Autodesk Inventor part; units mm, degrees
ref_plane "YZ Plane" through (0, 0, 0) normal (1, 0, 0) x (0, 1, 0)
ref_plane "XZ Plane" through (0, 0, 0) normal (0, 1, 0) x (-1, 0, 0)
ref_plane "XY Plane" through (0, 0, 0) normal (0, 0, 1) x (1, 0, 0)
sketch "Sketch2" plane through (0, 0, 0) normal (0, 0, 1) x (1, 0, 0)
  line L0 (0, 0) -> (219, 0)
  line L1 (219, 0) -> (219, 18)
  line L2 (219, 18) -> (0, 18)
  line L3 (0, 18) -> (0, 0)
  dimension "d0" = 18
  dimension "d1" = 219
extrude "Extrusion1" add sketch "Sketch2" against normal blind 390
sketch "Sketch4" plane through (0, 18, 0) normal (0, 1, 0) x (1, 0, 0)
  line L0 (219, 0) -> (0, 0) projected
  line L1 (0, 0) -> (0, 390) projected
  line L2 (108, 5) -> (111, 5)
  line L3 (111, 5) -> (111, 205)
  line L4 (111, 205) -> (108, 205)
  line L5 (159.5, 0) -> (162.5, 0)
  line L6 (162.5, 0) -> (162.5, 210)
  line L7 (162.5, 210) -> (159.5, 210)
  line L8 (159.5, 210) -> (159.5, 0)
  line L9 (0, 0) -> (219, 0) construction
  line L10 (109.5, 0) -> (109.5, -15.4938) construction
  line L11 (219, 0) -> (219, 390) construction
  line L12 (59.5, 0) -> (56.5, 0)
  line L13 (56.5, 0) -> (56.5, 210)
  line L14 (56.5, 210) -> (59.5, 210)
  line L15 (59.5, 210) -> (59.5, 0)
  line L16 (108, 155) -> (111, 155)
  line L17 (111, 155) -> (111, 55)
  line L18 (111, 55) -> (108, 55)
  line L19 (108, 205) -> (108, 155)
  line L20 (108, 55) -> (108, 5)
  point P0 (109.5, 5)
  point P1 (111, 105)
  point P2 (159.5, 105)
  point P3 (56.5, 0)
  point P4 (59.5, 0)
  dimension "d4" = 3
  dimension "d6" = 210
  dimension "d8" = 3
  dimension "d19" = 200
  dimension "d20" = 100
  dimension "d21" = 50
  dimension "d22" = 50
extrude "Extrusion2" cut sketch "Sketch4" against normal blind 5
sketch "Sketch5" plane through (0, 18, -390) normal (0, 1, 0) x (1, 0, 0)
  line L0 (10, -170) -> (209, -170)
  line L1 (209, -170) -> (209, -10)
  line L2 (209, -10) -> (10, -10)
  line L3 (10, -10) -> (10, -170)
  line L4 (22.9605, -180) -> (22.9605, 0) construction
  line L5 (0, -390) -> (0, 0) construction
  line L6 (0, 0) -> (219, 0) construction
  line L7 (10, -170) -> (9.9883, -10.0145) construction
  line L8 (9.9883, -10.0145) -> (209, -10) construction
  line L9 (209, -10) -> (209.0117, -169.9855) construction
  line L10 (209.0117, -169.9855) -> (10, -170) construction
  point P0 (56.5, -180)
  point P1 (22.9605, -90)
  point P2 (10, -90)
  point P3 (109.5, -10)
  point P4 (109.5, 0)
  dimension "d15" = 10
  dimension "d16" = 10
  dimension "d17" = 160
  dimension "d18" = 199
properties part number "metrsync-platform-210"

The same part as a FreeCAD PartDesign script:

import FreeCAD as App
import Part
import Sketcher

V = App.Vector

doc = App.newDocument("Part")
body = doc.addObject("PartDesign::Body", "Body")

sketch1 = doc.addObject("Sketcher::SketchObject", "Sketch")
body.addObject(sketch1)
sketch1.AttachmentSupport = (doc.XY_Plane, [""])
sketch1.MapMode = "FlatFace"
sketch1.addGeometry([
    Part.LineSegment(V(0, 18, 0), V(0, 0, 0)),
    Part.LineSegment(V(0, 0, 0), V(219, 0, 0)),
    Part.LineSegment(V(219, 0, 0), V(219, 18, 0)),
    Part.LineSegment(V(219, 18, 0), V(0, 18, 0)),
], False)
sketch1.addConstraint([
    Sketcher.Constraint("Coincident", 0, 2, 1, 1),
    Sketcher.Constraint("Coincident", 1, 2, 2, 1),
    Sketcher.Constraint("Coincident", 2, 2, 3, 1),
    Sketcher.Constraint("Coincident", 3, 2, 0, 1),
    Sketcher.Constraint("Vertical", 0),
    Sketcher.Constraint("Horizontal", 1),
    Sketcher.Constraint("Vertical", 2),
    Sketcher.Constraint("Horizontal", 3),
    Sketcher.Constraint("Coincident", 0, 2, -1, 1),
    Sketcher.Constraint("DistanceX", 1, 1, 1, 2, 219.0),
    Sketcher.Constraint("DistanceY", 0, 2, 0, 1, 18.0),
])
pad1 = doc.addObject("PartDesign::Pad", "Pad")
body.addObject(pad1)
pad1.Profile = sketch1
pad1.Length = 390
pad1.Reversed = True

sketch2 = doc.addObject("Sketcher::SketchObject", "Sketch001")
body.addObject(sketch2)
sketch2.AttachmentSupport = (doc.XZ_Plane, [""])
sketch2.MapMode = "FlatFace"
sketch2.AttachmentOffset = App.Placement(V(0, 0, -18), App.Rotation())
sketch2.addGeometry([
    Part.LineSegment(V(56.5, 0, 0), V(59.5, 0, 0)),
    Part.LineSegment(V(59.5, 0, 0), V(59.5, -210, 0)),
    Part.LineSegment(V(59.5, -210, 0), V(56.5, -210, 0)),
    Part.LineSegment(V(56.5, -210, 0), V(56.5, 0, 0)),
    Part.LineSegment(V(159.5, 0, 0), V(162.5, 0, 0)),
    Part.LineSegment(V(162.5, 0, 0), V(162.5, -210, 0)),
    Part.LineSegment(V(162.5, -210, 0), V(159.5, -210, 0)),
    Part.LineSegment(V(159.5, -210, 0), V(159.5, 0, 0)),
    Part.LineSegment(V(108, -55, 0), V(108, -5, 0)),
    Part.LineSegment(V(108, -5, 0), V(111, -5, 0)),
    Part.LineSegment(V(111, -5, 0), V(111, -55, 0)),
    Part.LineSegment(V(111, -55, 0), V(108, -55, 0)),
    Part.LineSegment(V(108, -155, 0), V(111, -155, 0)),
    Part.LineSegment(V(111, -155, 0), V(111, -205, 0)),
    Part.LineSegment(V(111, -205, 0), V(108, -205, 0)),
    Part.LineSegment(V(108, -205, 0), V(108, -155, 0)),
], False)
sketch2.addConstraint([
    Sketcher.Constraint("Coincident", 0, 2, 1, 1),
    Sketcher.Constraint("Coincident", 1, 2, 2, 1),
    Sketcher.Constraint("Coincident", 2, 2, 3, 1),
    Sketcher.Constraint("Coincident", 3, 2, 0, 1),
    Sketcher.Constraint("Coincident", 4, 2, 5, 1),
    Sketcher.Constraint("Coincident", 5, 2, 6, 1),
    Sketcher.Constraint("Coincident", 6, 2, 7, 1),
    Sketcher.Constraint("Coincident", 7, 2, 4, 1),
    Sketcher.Constraint("Coincident", 8, 2, 9, 1),
    Sketcher.Constraint("Coincident", 9, 2, 10, 1),
    Sketcher.Constraint("Coincident", 10, 2, 11, 1),
    Sketcher.Constraint("Coincident", 11, 2, 8, 1),
    Sketcher.Constraint("Coincident", 12, 2, 13, 1),
    Sketcher.Constraint("Coincident", 13, 2, 14, 1),
    Sketcher.Constraint("Coincident", 14, 2, 15, 1),
    Sketcher.Constraint("Coincident", 15, 2, 12, 1),
    Sketcher.Constraint("Horizontal", 0),
    Sketcher.Constraint("Vertical", 1),
    Sketcher.Constraint("Horizontal", 2),
    Sketcher.Constraint("Vertical", 3),
    Sketcher.Constraint("Horizontal", 4),
    Sketcher.Constraint("Vertical", 5),
    Sketcher.Constraint("Horizontal", 6),
    Sketcher.Constraint("Vertical", 7),
    Sketcher.Constraint("Vertical", 8),
    Sketcher.Constraint("Horizontal", 9),
    Sketcher.Constraint("Vertical", 10),
    Sketcher.Constraint("Horizontal", 11),
    Sketcher.Constraint("Horizontal", 12),
    Sketcher.Constraint("Vertical", 13),
    Sketcher.Constraint("Horizontal", 14),
    Sketcher.Constraint("Vertical", 15),
    Sketcher.Constraint("PointOnObject", 0, 2, -1),
    Sketcher.Constraint("PointOnObject", 4, 2, -1),
    Sketcher.Constraint("Horizontal", 2, 2, 5, 2),
    Sketcher.Constraint("Vertical", 10, 2, 12, 2),
    Sketcher.Constraint("Vertical", 11, 2, 14, 2),
    Sketcher.Constraint("Equal", 2, 4),
    Sketcher.Constraint("Equal", 6, 9),
    Sketcher.Constraint("Equal", 10, 13),
    Sketcher.Constraint("DistanceX", 0, 1, 0, 2, 3.0),
    Sketcher.Constraint("DistanceY", 1, 2, 1, 1, 210.0),
    Sketcher.Constraint("DistanceY", 8, 1, 8, 2, 50.0),
    Sketcher.Constraint("DistanceX", 1, 2, 6, 2, 100.0),
    Sketcher.Constraint("DistanceY", 12, 2, 10, 2, 100.0),
    Sketcher.Constraint("DistanceX", -1, 1, 8, 2, 108.0),
    Sketcher.Constraint("DistanceY", 8, 2, -1, 1, 5.0),
    Sketcher.Constraint("DistanceX", -1, 1, 0, 2, 59.5),
])
pocket1 = doc.addObject("PartDesign::Pocket", "Pocket")
body.addObject(pocket1)
pocket1.Profile = sketch2
pocket1.Length = 5
pocket1.Reversed = True

doc.recompute()
